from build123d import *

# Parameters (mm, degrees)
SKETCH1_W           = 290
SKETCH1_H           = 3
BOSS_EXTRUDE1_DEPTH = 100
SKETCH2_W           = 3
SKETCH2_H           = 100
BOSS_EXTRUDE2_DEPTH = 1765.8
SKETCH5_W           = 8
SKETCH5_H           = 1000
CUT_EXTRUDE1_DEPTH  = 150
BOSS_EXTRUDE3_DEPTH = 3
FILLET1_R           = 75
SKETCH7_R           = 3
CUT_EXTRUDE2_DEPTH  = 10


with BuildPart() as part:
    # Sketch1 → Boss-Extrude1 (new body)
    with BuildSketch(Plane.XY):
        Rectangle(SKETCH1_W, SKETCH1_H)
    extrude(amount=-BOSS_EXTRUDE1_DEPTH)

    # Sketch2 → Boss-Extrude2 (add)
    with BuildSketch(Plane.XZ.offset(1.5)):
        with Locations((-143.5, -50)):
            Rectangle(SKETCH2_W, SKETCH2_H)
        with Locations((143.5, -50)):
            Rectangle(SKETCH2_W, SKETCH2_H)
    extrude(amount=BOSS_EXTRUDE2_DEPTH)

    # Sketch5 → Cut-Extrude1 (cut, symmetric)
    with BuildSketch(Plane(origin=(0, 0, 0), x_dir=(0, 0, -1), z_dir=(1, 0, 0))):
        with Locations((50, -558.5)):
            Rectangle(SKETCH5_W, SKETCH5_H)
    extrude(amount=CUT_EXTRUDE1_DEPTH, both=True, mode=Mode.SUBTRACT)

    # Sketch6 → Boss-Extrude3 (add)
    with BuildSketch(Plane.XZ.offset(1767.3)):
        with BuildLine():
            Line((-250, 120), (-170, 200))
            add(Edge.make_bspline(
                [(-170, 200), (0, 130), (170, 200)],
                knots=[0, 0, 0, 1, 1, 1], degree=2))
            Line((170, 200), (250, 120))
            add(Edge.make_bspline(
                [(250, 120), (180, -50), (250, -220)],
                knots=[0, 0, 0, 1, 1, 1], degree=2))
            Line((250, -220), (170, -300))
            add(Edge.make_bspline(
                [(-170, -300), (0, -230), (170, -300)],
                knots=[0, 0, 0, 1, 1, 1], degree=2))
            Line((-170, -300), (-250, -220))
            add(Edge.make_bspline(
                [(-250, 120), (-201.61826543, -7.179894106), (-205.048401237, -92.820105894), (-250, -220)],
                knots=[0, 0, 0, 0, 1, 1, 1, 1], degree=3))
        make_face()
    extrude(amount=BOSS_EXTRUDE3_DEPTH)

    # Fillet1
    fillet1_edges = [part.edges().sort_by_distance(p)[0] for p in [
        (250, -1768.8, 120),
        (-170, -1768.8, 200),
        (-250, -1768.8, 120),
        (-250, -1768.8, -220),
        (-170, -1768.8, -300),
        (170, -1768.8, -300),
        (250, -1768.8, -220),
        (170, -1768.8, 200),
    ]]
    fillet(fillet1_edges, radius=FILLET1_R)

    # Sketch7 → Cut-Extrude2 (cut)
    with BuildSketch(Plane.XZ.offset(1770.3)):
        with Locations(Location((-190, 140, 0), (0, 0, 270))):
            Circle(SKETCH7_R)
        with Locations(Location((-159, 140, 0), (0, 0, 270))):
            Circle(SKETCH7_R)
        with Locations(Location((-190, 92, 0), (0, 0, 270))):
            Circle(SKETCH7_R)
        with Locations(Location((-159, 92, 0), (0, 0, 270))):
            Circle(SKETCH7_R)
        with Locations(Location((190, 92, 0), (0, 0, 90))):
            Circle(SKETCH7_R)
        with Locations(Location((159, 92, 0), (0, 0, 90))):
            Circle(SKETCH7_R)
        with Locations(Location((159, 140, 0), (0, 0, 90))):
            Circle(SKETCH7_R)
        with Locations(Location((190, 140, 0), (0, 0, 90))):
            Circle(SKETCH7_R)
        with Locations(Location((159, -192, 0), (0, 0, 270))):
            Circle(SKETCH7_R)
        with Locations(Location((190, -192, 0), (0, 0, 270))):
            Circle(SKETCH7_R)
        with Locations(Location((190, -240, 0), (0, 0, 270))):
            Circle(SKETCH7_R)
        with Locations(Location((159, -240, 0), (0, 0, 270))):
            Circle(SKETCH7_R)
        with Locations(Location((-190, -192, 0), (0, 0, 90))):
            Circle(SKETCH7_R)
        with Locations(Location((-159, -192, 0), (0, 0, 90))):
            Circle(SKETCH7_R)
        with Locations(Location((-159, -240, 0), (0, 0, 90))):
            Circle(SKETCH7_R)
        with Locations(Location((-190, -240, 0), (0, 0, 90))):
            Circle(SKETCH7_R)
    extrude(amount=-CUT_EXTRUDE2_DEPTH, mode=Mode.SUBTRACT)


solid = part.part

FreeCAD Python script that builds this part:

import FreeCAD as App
import Part
import Sketcher

V = App.Vector
Q = App.Units.Quantity


def edges_at(feature, points):
    """Names of the edges that pass closest to the given points."""
    edges = feature.Shape.Edges
    near = lambda p: min(range(len(edges)), key=lambda i: edges[i].distToShape(Part.Vertex(*p))[0])
    return sorted({f"Edge{near(p) + 1}" for p in points})

doc = App.newDocument("Part")
body = doc.addObject("PartDesign::Body", "Body")

sketch1 = doc.addObject("Sketcher::SketchObject", "Sketch")
body.addObject(sketch1)
sketch1.AttachmentSupport = (doc.XY_Plane, [""])
sketch1.MapMode = "FlatFace"
sketch1.addGeometry([
    Part.LineSegment(V(-145, 1.5, 0), V(-145, -1.5, 0)),
    Part.LineSegment(V(-145, -1.5, 0), V(145, -1.5, 0)),
    Part.LineSegment(V(145, -1.5, 0), V(145, 1.5, 0)),
    Part.LineSegment(V(145, 1.5, 0), V(-145, 1.5, 0)),
], False)
sketch1.addConstraint([
    Sketcher.Constraint("Coincident", 0, 2, 1, 1),
    Sketcher.Constraint("Coincident", 1, 2, 2, 1),
    Sketcher.Constraint("Coincident", 2, 2, 3, 1),
    Sketcher.Constraint("Coincident", 3, 2, 0, 1),
    Sketcher.Constraint("Vertical", 0),
    Sketcher.Constraint("Horizontal", 1),
    Sketcher.Constraint("Vertical", 2),
    Sketcher.Constraint("Horizontal", 3),
    Sketcher.Constraint("Symmetric", 0, 2, 2, 2, -1, 1),
    Sketcher.Constraint("DistanceX", 1, 1, 1, 2, Q("290 mm")),
    Sketcher.Constraint("DistanceY", 0, 2, 0, 1, Q("3 mm")),
])
pad1 = doc.addObject("PartDesign::Pad", "Pad")
body.addObject(pad1)
pad1.Profile = sketch1
pad1.Length = 100
pad1.Reversed = True

sketch2 = doc.addObject("Sketcher::SketchObject", "Sketch001")
body.addObject(sketch2)
sketch2.AttachmentSupport = (doc.XZ_Plane, [""])
sketch2.MapMode = "FlatFace"
sketch2.AttachmentOffset = App.Placement(V(0, 0, 1.5), App.Rotation())
sketch2.addGeometry([
    Part.LineSegment(V(-145, 0, 0), V(-145, -100, 0)),
    Part.LineSegment(V(-145, -100, 0), V(-142, -100, 0)),
    Part.LineSegment(V(-142, -100, 0), V(-142, 0, 0)),
    Part.LineSegment(V(-142, 0, 0), V(-145, 0, 0)),
    Part.LineSegment(V(142, 0, 0), V(142, -100, 0)),
    Part.LineSegment(V(142, -100, 0), V(145, -100, 0)),
    Part.LineSegment(V(145, -100, 0), V(145, 0, 0)),
    Part.LineSegment(V(145, 0, 0), V(142, 0, 0)),
], False)
sketch2.addConstraint([
    Sketcher.Constraint("Coincident", 0, 2, 1, 1),
    Sketcher.Constraint("Coincident", 1, 2, 2, 1),
    Sketcher.Constraint("Coincident", 2, 2, 3, 1),
    Sketcher.Constraint("Coincident", 3, 2, 0, 1),
    Sketcher.Constraint("Coincident", 4, 2, 5, 1),
    Sketcher.Constraint("Coincident", 5, 2, 6, 1),
    Sketcher.Constraint("Coincident", 6, 2, 7, 1),
    Sketcher.Constraint("Coincident", 7, 2, 4, 1),
    Sketcher.Constraint("Vertical", 0),
    Sketcher.Constraint("Horizontal", 1),
    Sketcher.Constraint("Vertical", 2),
    Sketcher.Constraint("Horizontal", 3),
    Sketcher.Constraint("Vertical", 4),
    Sketcher.Constraint("Horizontal", 5),
    Sketcher.Constraint("Vertical", 6),
    Sketcher.Constraint("Horizontal", 7),
    Sketcher.Constraint("Symmetric", 3, 2, 6, 2, -1, 1),
    Sketcher.Constraint("Symmetric", 1, 2, 4, 2, -2),
    Sketcher.Constraint("PointOnObject", 2, 2, -1),
    Sketcher.Constraint("DistanceX", 1, 1, 1, 2, Q("3 mm")),
    Sketcher.Constraint("DistanceY", 0, 2, 0, 1, Q("100 mm")),
    Sketcher.Constraint("DistanceX", 0, 2, -1, 1, Q("145 mm")),
])
pad2 = doc.addObject("PartDesign::Pad", "Pad001")
body.addObject(pad2)
pad2.Profile = sketch2
pad2.Length = 1765.8

sketch3 = doc.addObject("Sketcher::SketchObject", "Sketch002")
body.addObject(sketch3)
sketch3.AttachmentSupport = (doc.YZ_Plane, [""])
sketch3.MapMode = "FlatFace"
sketch3.addGeometry([
    Part.LineSegment(V(-58, -46, 0), V(-1058, -46, 0)),
    Part.LineSegment(V(-1058, -46, 0), V(-1058, -54, 0)),
    Part.LineSegment(V(-1058, -54, 0), V(-58, -54, 0)),
    Part.LineSegment(V(-58, -54, 0), V(-58, -46, 0)),
], False)
sketch3.addConstraint([
    Sketcher.Constraint("Coincident", 0, 2, 1, 1),
    Sketcher.Constraint("Coincident", 1, 2, 2, 1),
    Sketcher.Constraint("Coincident", 2, 2, 3, 1),
    Sketcher.Constraint("Coincident", 3, 2, 0, 1),
    Sketcher.Constraint("Horizontal", 0),
    Sketcher.Constraint("Vertical", 1),
    Sketcher.Constraint("Horizontal", 2),
    Sketcher.Constraint("Vertical", 3),
    Sketcher.Constraint("DistanceX", 0, 2, 0, 1, Q("1000 mm")),
    Sketcher.Constraint("DistanceY", 1, 2, 1, 1, Q("8 mm")),
    Sketcher.Constraint("DistanceY", 0, 2, -1, 1, Q("46 mm")),
    Sketcher.Constraint("DistanceX", 0, 2, -1, 1, Q("1058.5 mm")),
])
pocket1 = doc.addObject("PartDesign::Pocket", "Pocket")
body.addObject(pocket1)
pocket1.Profile = sketch3
pocket1.Length = 300
pocket1.Midplane = True

sketch4 = doc.addObject("Sketcher::SketchObject", "Sketch003")
body.addObject(sketch4)
sketch4.AttachmentSupport = (doc.XZ_Plane, [""])
sketch4.MapMode = "FlatFace"
sketch4.AttachmentOffset = App.Placement(V(0, 0, 1767.3), App.Rotation())
sketch4.addGeometry([
    Part.LineSegment(V(-170, 200, 0), V(-250, 120, 0)),
    Part.BSplineCurve([V(-250, 120, 0), V(-201.618265, -7.179894, 0), V(-205.048401, -92.820106, 0), V(-250, -220, 0)], [4, 4], [0, 1], False, 3, [1, 1, 1, 1], False),
    Part.LineSegment(V(-250, -220, 0), V(-170, -300, 0)),
    Part.BSplineCurve([V(-170, -300, 0), V(0, -230, 0), V(170, -300, 0)], [3, 3], [0, 1], False, 2, [1, 1, 1], False),
    Part.LineSegment(V(170, -300, 0), V(250, -220, 0)),
    Part.BSplineCurve([V(250, 120, 0), V(180, -50, 0), V(250, -220, 0)], [3, 3], [0, 1], False, 2, [1, 1, 1], False),
    Part.LineSegment(V(250, 120, 0), V(170, 200, 0)),
    Part.BSplineCurve([V(-170, 200, 0), V(0, 130, 0), V(170, 200, 0)], [3, 3], [0, 1], False, 2, [1, 1, 1], False),
], False)
sketch4.addConstraint([
    Sketcher.Constraint("Block", 1),
    Sketcher.Constraint("Block", 3),
    Sketcher.Constraint("Block", 5),
    Sketcher.Constraint("Block", 7),
    Sketcher.Constraint("Coincident", 0, 2, 1, 1),
    Sketcher.Constraint("Coincident", 1, 2, 2, 1),
    Sketcher.Constraint("Coincident", 2, 2, 3, 1),
    Sketcher.Constraint("Coincident", 3, 2, 4, 1),
    Sketcher.Constraint("Coincident", 4, 2, 5, 2),
    Sketcher.Constraint("Coincident", 5, 1, 6, 1),
    Sketcher.Constraint("Coincident", 6, 2, 7, 2),
    Sketcher.Constraint("Coincident", 7, 1, 0, 1),
])
pad3 = doc.addObject("PartDesign::Pad", "Pad002")
body.addObject(pad3)
pad3.Profile = sketch4
pad3.Length = 3
doc.recompute()

fillet = doc.addObject("PartDesign::Fillet", "Fillet")
body.addObject(fillet)
fillet.Base = (pad3, edges_at(pad3, [
    (250, -1768.8, 120),
    (-170, -1768.8, 200),
    (-250, -1768.8, 120),
    (-250, -1768.8, -220),
    (-170, -1768.8, -300),
    (170, -1768.8, -300),
    (250, -1768.8, -220),
    (170, -1768.8, 200),
]))
fillet.Radius = 75

sketch5 = doc.addObject("Sketcher::SketchObject", "Sketch004")
body.addObject(sketch5)
sketch5.AttachmentSupport = (doc.XZ_Plane, [""])
sketch5.MapMode = "FlatFace"
sketch5.AttachmentOffset = App.Placement(V(0, 0, 1770.3), App.Rotation())
sketch5.addGeometry([
    Part.Circle(V(-190, 140, 0), V(0, 0, 1), 3),
    Part.Circle(V(-159, 140, 0), V(0, 0, 1), 3),
    Part.Circle(V(-190, 92, 0), V(0, 0, 1), 3),
    Part.Circle(V(-159, 92, 0), V(0, 0, 1), 3),
    Part.Circle(V(190, 92, 0), V(0, 0, 1), 3),
    Part.Circle(V(159, 92, 0), V(0, 0, 1), 3),
    Part.Circle(V(159, 140, 0), V(0, 0, 1), 3),
    Part.Circle(V(190, 140, 0), V(0, 0, 1), 3),
    Part.Circle(V(159, -192, 0), V(0, 0, 1), 3),
    Part.Circle(V(190, -192, 0), V(0, 0, 1), 3),
    Part.Circle(V(190, -240, 0), V(0, 0, 1), 3),
    Part.Circle(V(159, -240, 0), V(0, 0, 1), 3),
    Part.Circle(V(-190, -192, 0), V(0, 0, 1), 3),
    Part.Circle(V(-159, -192, 0), V(0, 0, 1), 3),
    Part.Circle(V(-159, -240, 0), V(0, 0, 1), 3),
    Part.Circle(V(-190, -240, 0), V(0, 0, 1), 3),
], False)
sketch5.addConstraint([
    Sketcher.Constraint("Equal", 0, 1),
    Sketcher.Constraint("Equal", 1, 2),
    Sketcher.Constraint("Equal", 2, 3),
    Sketcher.Constraint("Equal", 3, 4),
    Sketcher.Constraint("Equal", 4, 5),
    Sketcher.Constraint("Equal", 5, 6),
    Sketcher.Constraint("Equal", 6, 7),
    Sketcher.Constraint("Equal", 7, 8),
    Sketcher.Constraint("Equal", 8, 9),
    Sketcher.Constraint("Equal", 9, 10),
    Sketcher.Constraint("Equal", 10, 11),
    Sketcher.Constraint("Equal", 11, 12),
    Sketcher.Constraint("Equal", 12, 13),
    Sketcher.Constraint("Equal", 13, 14),
    Sketcher.Constraint("Equal", 14, 15),
    Sketcher.Constraint("Symmetric", 2, 3, 4, 3, -2),
    Sketcher.Constraint("Symmetric", 3, 3, 5, 3, -2),
    Sketcher.Constraint("Symmetric", 1, 3, 6, 3, -2),
    Sketcher.Constraint("Symmetric", 0, 3, 7, 3, -2),
    Sketcher.Constraint("Symmetric", 9, 3, 12, 3, -2),
    Sketcher.Constraint("Symmetric", 8, 3, 13, 3, -2),
    Sketcher.Constraint("Symmetric", 11, 3, 14, 3, -2),
    Sketcher.Constraint("Symmetric", 10, 3, 15, 3, -2),
    Sketcher.Constraint("Horizontal", 0, 3, 1, 3),
    Sketcher.Constraint("Horizontal", 2, 3, 3, 3),
    Sketcher.Constraint("Horizontal", 8, 3, 9, 3),
    Sketcher.Constraint("Horizontal", 10, 3, 11, 3),
    Sketcher.Constraint("Vertical", 0, 3, 2, 3),
    Sketcher.Constraint("Vertical", 1, 3, 3, 3),
    Sketcher.Constraint("Vertical", 6, 3, 8, 3),
    Sketcher.Constraint("Vertical", 7, 3, 9, 3),
    Sketcher.Constraint("Vertical", 9, 3, 10, 3),
    Sketcher.Constraint("Vertical", 8, 3, 11, 3),
    Sketcher.Constraint("Diameter", 0, Q("6 mm")),
    Sketcher.Constraint("DistanceX", 0, 3, -1, 1, Q("190 mm")),
    Sketcher.Constraint("DistanceY", -1, 1, 0, 3, Q("140 mm")),
    Sketcher.Constraint("DistanceX", 1, 3, -1, 1, Q("159 mm")),
    Sketcher.Constraint("DistanceY", -1, 1, 2, 3, Q("92 mm")),
    Sketcher.Constraint("DistanceY", 8, 3, -1, 1, Q("192 mm")),
    Sketcher.Constraint("DistanceY", 10, 3, -1, 1, Q("240 mm")),
])
pocket2 = doc.addObject("PartDesign::Pocket", "Pocket001")
body.addObject(pocket2)
pocket2.Profile = sketch5
pocket2.Length = 10

doc.recompute()
